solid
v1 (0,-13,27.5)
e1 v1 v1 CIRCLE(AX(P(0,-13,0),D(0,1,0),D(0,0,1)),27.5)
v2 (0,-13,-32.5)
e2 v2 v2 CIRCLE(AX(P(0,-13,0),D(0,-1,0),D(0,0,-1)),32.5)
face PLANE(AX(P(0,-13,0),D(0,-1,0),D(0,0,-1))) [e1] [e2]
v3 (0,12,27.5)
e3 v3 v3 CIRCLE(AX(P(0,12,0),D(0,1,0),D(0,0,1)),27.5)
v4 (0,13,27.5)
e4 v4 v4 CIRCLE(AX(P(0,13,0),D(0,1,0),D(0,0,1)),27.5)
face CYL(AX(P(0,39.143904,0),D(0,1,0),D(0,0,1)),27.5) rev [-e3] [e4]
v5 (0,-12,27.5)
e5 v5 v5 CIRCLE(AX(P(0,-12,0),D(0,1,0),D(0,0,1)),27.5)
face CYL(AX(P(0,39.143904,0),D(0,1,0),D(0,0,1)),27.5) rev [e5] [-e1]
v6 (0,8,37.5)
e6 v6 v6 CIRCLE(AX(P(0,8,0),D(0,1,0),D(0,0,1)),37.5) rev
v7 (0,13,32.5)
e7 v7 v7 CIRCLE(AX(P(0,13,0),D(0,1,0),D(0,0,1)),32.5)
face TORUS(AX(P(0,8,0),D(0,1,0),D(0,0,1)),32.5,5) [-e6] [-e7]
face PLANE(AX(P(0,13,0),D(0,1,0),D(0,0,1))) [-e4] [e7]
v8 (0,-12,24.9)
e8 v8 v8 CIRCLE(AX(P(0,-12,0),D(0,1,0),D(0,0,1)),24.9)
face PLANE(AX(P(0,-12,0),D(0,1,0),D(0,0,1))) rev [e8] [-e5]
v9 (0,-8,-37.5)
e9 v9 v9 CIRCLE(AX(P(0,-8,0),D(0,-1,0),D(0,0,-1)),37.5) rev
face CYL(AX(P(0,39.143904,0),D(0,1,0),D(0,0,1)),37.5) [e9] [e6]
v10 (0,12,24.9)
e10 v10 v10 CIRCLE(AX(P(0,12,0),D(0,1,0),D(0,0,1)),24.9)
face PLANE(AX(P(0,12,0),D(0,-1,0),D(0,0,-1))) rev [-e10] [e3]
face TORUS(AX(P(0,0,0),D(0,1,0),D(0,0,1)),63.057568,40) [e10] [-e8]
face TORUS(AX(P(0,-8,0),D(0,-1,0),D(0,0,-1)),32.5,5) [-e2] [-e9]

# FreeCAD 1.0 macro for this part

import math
import FreeCAD as App
import Part
import Sketcher

V = App.Vector
Q = App.Units.Quantity


def edges_at(feature, points):
    """Names of the edges that pass closest to the given points."""
    edges = feature.Shape.Edges
    near = lambda p: min(range(len(edges)), key=lambda i: edges[i].distToShape(Part.Vertex(*p))[0])
    return sorted({f"Edge{near(p) + 1}" for p in points})

doc = App.newDocument("Part")
body = doc.addObject("PartDesign::Body", "Body")

sketch1 = body.newObject("Sketcher::SketchObject", "Sketch")
sketch1.AttachmentSupport = (doc.getObject("XY_Plane"), [""])
sketch1.MapMode = "FlatFace"
sketch1.addGeometry(Part.LineSegment(V(-27.5, -13, 0), V(-27.5, -12, 0)), False)
sketch1.addGeometry(Part.LineSegment(V(-27.5, -12, 0), V(-24.9, -12, 0)), False)
sketch1.addGeometry(Part.ArcOfCircle(Part.Circle(V(-63.057568, 0, 0), V(0, 0, 1), 40), math.radians(-17.457603), math.radians(17.457603)), False)
sketch1.addGeometry(Part.LineSegment(V(-24.9, 12, 0), V(-27.5, 12, 0)), False)
sketch1.addGeometry(Part.LineSegment(V(-27.5, 12, 0), V(-27.5, 13, 0)), False)
sketch1.addGeometry(Part.LineSegment(V(-27.5, 13, 0), V(-37.5, 13, 0)), False)
sketch1.addGeometry(Part.LineSegment(V(-37.5, 13, 0), V(-37.5, -13, 0)), False)
sketch1.addGeometry(Part.LineSegment(V(-37.5, -13, 0), V(-27.5, -13, 0)), False)
sketch1.addConstraint(Sketcher.Constraint("Coincident", 0, 2, 1, 1))
sketch1.addConstraint(Sketcher.Constraint("Coincident", 1, 2, 2, 1))
sketch1.addConstraint(Sketcher.Constraint("Coincident", 2, 2, 3, 1))
sketch1.addConstraint(Sketcher.Constraint("Coincident", 3, 2, 4, 1))
sketch1.addConstraint(Sketcher.Constraint("Coincident", 4, 2, 5, 1))
sketch1.addConstraint(Sketcher.Constraint("Coincident", 5, 2, 6, 1))
sketch1.addConstraint(Sketcher.Constraint("Coincident", 6, 2, 7, 1))
sketch1.addConstraint(Sketcher.Constraint("Coincident", 7, 2, 0, 1))
sketch1.addConstraint(Sketcher.Constraint("Vertical", 0))
sketch1.addConstraint(Sketcher.Constraint("Horizontal", 1))
sketch1.addConstraint(Sketcher.Constraint("Horizontal", 3))
sketch1.addConstraint(Sketcher.Constraint("Vertical", 4))
sketch1.addConstraint(Sketcher.Constraint("Horizontal", 5))
sketch1.addConstraint(Sketcher.Constraint("Vertical", 6))
sketch1.addConstraint(Sketcher.Constraint("Horizontal", 7))
sketch1.addConstraint(Sketcher.Constraint("Symmetric", 1, 2, 2, 2, -1))
sketch1.addConstraint(Sketcher.Constraint("Symmetric", 4, 2, 7, 2, -1))
sketch1.addConstraint(Sketcher.Constraint("Radius", 2, Q("40 mm")))
sketch1.addConstraint(Sketcher.Constraint("DistanceX", 5, 2, 5, 1, Q("10 mm")))
sketch1.addConstraint(Sketcher.Constraint("DistanceY", 0, 1, 0, 2, Q("1 mm")))
sketch1.addConstraint(Sketcher.Constraint("DistanceY", 6, 2, 6, 1, Q("26 mm")))
sketch1.addConstraint(Sketcher.Constraint("DistanceX", 1, 1, 1, 2, Q("2.6 mm")))
sketch1.addConstraint(Sketcher.Constraint("DistanceX", 0, 2, -1, 1, Q("27.5 mm")))
revolution = body.newObject("PartDesign::Revolution", "Revolution")
revolution.Profile = sketch1
revolution.ReferenceAxis = (sketch1, ["V_Axis"])
revolution.Angle = 360
doc.recompute()

fillet = body.newObject("PartDesign::Fillet", "Fillet")
fillet.Base = (revolution, edges_at(revolution, [(37.5, -13, 0), (37.5, 13, 0)]))
fillet.Radius = 5

doc.recompute()
